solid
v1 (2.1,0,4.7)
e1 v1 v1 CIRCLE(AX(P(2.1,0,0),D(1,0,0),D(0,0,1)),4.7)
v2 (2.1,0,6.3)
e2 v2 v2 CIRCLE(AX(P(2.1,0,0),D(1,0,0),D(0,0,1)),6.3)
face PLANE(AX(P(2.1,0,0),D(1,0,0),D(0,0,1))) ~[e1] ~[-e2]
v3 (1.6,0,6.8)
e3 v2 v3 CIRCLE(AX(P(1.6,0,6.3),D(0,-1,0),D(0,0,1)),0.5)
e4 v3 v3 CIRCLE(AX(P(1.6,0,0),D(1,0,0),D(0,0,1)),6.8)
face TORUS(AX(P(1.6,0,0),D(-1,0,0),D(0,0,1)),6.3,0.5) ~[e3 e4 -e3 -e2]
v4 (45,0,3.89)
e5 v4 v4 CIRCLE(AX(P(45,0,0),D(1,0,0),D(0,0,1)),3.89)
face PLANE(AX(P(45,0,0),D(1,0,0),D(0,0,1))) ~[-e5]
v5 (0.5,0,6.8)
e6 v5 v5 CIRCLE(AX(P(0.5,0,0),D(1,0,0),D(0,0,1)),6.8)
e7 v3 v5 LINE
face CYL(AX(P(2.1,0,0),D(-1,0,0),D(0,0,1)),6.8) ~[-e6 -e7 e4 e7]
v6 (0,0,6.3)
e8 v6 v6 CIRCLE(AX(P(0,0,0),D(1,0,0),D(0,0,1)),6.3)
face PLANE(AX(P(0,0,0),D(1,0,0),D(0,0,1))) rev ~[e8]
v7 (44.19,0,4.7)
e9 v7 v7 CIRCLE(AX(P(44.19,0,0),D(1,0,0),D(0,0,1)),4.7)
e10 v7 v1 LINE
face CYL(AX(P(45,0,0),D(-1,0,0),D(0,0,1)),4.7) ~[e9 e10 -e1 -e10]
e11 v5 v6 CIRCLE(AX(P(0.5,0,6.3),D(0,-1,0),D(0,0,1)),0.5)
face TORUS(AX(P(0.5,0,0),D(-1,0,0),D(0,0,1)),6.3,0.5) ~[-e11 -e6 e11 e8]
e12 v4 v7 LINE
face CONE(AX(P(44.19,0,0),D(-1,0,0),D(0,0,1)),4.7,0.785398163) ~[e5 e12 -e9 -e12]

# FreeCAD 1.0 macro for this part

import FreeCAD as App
import Part
import Sketcher


def edges_at(feature, points):
    """Names of the edges that pass closest to the given points."""
    edges = feature.Shape.Edges
    near = lambda p: min(range(len(edges)), key=lambda i: edges[i].distToShape(Part.Vertex(*p))[0])
    return sorted({f"Edge{near(p) + 1}" for p in points})


def add_polygon(sketch, points):
    """Adds a closed chain of lines whose ends are joined by coincident constraints."""
    first, n = sketch.GeometryCount, len(points)
    for a, b in zip(points, points[1:] + points[:1]):
        sketch.addGeometry(Part.LineSegment(App.Vector(*a, 0), App.Vector(*b, 0)), False)
    for i in range(n):
        sketch.addConstraint(Sketcher.Constraint("Coincident", first + i, 2, first + (i + 1) % n, 1))

doc = App.newDocument("Part")
body = doc.addObject("PartDesign::Body", "Body")

# Sketch on XZ plane
sketch1 = doc.addObject("Sketcher::SketchObject", "Sketch")
body.addObject(sketch1)
sketch1.AttachmentSupport = (doc.XZ_Plane, [""])
sketch1.MapMode = "FlatFace"
add_polygon(sketch1, [(0, 6.8), (0, 0), (45, 0), (45, 4.7), (2.1, 4.7), (2.1, 6.8)])  # lines 0-5
sketch1.addConstraint([
    Sketcher.Constraint("Vertical", 0),
    Sketcher.Constraint("Horizontal", 1),
    Sketcher.Constraint("Vertical", 2),
    Sketcher.Constraint("Horizontal", 3),
    Sketcher.Constraint("Vertical", 4),
    Sketcher.Constraint("Horizontal", 5),
    Sketcher.Constraint("Coincident", 0, 2, -1, 1),
    Sketcher.Constraint("Equal", 5, 4),
    Sketcher.Constraint("DistanceX", 1, 1, 1, 2, 45.0),
    Sketcher.Constraint("DistanceX", 3, 2, 3, 1, 42.9),
    Sketcher.Constraint("DistanceY", 0, 2, 0, 1, 6.8),
])
revolution = doc.addObject("PartDesign::Revolution", "Revolution")
body.addObject(revolution)
revolution.Profile = sketch1
revolution.ReferenceAxis = (sketch1, ["H_Axis"])
revolution.Angle = 360
doc.recompute()

chamfer = doc.addObject("PartDesign::Chamfer", "Chamfer")
body.addObject(chamfer)
chamfer.Base = (revolution, edges_at(revolution, [(45, 0, -4.7)]))
chamfer.ChamferType = "Two distances"
chamfer.Size = 0.81
chamfer.Size2 = 0.81
doc.recompute()

fillet = doc.addObject("PartDesign::Fillet", "Fillet")
body.addObject(fillet)
fillet.Base = (chamfer, edges_at(chamfer, [(2.1, 0, -6.8), (0, 0, -6.8), (1.05, 0, 6.8)]))
fillet.Radius = 0.5

doc.recompute()
